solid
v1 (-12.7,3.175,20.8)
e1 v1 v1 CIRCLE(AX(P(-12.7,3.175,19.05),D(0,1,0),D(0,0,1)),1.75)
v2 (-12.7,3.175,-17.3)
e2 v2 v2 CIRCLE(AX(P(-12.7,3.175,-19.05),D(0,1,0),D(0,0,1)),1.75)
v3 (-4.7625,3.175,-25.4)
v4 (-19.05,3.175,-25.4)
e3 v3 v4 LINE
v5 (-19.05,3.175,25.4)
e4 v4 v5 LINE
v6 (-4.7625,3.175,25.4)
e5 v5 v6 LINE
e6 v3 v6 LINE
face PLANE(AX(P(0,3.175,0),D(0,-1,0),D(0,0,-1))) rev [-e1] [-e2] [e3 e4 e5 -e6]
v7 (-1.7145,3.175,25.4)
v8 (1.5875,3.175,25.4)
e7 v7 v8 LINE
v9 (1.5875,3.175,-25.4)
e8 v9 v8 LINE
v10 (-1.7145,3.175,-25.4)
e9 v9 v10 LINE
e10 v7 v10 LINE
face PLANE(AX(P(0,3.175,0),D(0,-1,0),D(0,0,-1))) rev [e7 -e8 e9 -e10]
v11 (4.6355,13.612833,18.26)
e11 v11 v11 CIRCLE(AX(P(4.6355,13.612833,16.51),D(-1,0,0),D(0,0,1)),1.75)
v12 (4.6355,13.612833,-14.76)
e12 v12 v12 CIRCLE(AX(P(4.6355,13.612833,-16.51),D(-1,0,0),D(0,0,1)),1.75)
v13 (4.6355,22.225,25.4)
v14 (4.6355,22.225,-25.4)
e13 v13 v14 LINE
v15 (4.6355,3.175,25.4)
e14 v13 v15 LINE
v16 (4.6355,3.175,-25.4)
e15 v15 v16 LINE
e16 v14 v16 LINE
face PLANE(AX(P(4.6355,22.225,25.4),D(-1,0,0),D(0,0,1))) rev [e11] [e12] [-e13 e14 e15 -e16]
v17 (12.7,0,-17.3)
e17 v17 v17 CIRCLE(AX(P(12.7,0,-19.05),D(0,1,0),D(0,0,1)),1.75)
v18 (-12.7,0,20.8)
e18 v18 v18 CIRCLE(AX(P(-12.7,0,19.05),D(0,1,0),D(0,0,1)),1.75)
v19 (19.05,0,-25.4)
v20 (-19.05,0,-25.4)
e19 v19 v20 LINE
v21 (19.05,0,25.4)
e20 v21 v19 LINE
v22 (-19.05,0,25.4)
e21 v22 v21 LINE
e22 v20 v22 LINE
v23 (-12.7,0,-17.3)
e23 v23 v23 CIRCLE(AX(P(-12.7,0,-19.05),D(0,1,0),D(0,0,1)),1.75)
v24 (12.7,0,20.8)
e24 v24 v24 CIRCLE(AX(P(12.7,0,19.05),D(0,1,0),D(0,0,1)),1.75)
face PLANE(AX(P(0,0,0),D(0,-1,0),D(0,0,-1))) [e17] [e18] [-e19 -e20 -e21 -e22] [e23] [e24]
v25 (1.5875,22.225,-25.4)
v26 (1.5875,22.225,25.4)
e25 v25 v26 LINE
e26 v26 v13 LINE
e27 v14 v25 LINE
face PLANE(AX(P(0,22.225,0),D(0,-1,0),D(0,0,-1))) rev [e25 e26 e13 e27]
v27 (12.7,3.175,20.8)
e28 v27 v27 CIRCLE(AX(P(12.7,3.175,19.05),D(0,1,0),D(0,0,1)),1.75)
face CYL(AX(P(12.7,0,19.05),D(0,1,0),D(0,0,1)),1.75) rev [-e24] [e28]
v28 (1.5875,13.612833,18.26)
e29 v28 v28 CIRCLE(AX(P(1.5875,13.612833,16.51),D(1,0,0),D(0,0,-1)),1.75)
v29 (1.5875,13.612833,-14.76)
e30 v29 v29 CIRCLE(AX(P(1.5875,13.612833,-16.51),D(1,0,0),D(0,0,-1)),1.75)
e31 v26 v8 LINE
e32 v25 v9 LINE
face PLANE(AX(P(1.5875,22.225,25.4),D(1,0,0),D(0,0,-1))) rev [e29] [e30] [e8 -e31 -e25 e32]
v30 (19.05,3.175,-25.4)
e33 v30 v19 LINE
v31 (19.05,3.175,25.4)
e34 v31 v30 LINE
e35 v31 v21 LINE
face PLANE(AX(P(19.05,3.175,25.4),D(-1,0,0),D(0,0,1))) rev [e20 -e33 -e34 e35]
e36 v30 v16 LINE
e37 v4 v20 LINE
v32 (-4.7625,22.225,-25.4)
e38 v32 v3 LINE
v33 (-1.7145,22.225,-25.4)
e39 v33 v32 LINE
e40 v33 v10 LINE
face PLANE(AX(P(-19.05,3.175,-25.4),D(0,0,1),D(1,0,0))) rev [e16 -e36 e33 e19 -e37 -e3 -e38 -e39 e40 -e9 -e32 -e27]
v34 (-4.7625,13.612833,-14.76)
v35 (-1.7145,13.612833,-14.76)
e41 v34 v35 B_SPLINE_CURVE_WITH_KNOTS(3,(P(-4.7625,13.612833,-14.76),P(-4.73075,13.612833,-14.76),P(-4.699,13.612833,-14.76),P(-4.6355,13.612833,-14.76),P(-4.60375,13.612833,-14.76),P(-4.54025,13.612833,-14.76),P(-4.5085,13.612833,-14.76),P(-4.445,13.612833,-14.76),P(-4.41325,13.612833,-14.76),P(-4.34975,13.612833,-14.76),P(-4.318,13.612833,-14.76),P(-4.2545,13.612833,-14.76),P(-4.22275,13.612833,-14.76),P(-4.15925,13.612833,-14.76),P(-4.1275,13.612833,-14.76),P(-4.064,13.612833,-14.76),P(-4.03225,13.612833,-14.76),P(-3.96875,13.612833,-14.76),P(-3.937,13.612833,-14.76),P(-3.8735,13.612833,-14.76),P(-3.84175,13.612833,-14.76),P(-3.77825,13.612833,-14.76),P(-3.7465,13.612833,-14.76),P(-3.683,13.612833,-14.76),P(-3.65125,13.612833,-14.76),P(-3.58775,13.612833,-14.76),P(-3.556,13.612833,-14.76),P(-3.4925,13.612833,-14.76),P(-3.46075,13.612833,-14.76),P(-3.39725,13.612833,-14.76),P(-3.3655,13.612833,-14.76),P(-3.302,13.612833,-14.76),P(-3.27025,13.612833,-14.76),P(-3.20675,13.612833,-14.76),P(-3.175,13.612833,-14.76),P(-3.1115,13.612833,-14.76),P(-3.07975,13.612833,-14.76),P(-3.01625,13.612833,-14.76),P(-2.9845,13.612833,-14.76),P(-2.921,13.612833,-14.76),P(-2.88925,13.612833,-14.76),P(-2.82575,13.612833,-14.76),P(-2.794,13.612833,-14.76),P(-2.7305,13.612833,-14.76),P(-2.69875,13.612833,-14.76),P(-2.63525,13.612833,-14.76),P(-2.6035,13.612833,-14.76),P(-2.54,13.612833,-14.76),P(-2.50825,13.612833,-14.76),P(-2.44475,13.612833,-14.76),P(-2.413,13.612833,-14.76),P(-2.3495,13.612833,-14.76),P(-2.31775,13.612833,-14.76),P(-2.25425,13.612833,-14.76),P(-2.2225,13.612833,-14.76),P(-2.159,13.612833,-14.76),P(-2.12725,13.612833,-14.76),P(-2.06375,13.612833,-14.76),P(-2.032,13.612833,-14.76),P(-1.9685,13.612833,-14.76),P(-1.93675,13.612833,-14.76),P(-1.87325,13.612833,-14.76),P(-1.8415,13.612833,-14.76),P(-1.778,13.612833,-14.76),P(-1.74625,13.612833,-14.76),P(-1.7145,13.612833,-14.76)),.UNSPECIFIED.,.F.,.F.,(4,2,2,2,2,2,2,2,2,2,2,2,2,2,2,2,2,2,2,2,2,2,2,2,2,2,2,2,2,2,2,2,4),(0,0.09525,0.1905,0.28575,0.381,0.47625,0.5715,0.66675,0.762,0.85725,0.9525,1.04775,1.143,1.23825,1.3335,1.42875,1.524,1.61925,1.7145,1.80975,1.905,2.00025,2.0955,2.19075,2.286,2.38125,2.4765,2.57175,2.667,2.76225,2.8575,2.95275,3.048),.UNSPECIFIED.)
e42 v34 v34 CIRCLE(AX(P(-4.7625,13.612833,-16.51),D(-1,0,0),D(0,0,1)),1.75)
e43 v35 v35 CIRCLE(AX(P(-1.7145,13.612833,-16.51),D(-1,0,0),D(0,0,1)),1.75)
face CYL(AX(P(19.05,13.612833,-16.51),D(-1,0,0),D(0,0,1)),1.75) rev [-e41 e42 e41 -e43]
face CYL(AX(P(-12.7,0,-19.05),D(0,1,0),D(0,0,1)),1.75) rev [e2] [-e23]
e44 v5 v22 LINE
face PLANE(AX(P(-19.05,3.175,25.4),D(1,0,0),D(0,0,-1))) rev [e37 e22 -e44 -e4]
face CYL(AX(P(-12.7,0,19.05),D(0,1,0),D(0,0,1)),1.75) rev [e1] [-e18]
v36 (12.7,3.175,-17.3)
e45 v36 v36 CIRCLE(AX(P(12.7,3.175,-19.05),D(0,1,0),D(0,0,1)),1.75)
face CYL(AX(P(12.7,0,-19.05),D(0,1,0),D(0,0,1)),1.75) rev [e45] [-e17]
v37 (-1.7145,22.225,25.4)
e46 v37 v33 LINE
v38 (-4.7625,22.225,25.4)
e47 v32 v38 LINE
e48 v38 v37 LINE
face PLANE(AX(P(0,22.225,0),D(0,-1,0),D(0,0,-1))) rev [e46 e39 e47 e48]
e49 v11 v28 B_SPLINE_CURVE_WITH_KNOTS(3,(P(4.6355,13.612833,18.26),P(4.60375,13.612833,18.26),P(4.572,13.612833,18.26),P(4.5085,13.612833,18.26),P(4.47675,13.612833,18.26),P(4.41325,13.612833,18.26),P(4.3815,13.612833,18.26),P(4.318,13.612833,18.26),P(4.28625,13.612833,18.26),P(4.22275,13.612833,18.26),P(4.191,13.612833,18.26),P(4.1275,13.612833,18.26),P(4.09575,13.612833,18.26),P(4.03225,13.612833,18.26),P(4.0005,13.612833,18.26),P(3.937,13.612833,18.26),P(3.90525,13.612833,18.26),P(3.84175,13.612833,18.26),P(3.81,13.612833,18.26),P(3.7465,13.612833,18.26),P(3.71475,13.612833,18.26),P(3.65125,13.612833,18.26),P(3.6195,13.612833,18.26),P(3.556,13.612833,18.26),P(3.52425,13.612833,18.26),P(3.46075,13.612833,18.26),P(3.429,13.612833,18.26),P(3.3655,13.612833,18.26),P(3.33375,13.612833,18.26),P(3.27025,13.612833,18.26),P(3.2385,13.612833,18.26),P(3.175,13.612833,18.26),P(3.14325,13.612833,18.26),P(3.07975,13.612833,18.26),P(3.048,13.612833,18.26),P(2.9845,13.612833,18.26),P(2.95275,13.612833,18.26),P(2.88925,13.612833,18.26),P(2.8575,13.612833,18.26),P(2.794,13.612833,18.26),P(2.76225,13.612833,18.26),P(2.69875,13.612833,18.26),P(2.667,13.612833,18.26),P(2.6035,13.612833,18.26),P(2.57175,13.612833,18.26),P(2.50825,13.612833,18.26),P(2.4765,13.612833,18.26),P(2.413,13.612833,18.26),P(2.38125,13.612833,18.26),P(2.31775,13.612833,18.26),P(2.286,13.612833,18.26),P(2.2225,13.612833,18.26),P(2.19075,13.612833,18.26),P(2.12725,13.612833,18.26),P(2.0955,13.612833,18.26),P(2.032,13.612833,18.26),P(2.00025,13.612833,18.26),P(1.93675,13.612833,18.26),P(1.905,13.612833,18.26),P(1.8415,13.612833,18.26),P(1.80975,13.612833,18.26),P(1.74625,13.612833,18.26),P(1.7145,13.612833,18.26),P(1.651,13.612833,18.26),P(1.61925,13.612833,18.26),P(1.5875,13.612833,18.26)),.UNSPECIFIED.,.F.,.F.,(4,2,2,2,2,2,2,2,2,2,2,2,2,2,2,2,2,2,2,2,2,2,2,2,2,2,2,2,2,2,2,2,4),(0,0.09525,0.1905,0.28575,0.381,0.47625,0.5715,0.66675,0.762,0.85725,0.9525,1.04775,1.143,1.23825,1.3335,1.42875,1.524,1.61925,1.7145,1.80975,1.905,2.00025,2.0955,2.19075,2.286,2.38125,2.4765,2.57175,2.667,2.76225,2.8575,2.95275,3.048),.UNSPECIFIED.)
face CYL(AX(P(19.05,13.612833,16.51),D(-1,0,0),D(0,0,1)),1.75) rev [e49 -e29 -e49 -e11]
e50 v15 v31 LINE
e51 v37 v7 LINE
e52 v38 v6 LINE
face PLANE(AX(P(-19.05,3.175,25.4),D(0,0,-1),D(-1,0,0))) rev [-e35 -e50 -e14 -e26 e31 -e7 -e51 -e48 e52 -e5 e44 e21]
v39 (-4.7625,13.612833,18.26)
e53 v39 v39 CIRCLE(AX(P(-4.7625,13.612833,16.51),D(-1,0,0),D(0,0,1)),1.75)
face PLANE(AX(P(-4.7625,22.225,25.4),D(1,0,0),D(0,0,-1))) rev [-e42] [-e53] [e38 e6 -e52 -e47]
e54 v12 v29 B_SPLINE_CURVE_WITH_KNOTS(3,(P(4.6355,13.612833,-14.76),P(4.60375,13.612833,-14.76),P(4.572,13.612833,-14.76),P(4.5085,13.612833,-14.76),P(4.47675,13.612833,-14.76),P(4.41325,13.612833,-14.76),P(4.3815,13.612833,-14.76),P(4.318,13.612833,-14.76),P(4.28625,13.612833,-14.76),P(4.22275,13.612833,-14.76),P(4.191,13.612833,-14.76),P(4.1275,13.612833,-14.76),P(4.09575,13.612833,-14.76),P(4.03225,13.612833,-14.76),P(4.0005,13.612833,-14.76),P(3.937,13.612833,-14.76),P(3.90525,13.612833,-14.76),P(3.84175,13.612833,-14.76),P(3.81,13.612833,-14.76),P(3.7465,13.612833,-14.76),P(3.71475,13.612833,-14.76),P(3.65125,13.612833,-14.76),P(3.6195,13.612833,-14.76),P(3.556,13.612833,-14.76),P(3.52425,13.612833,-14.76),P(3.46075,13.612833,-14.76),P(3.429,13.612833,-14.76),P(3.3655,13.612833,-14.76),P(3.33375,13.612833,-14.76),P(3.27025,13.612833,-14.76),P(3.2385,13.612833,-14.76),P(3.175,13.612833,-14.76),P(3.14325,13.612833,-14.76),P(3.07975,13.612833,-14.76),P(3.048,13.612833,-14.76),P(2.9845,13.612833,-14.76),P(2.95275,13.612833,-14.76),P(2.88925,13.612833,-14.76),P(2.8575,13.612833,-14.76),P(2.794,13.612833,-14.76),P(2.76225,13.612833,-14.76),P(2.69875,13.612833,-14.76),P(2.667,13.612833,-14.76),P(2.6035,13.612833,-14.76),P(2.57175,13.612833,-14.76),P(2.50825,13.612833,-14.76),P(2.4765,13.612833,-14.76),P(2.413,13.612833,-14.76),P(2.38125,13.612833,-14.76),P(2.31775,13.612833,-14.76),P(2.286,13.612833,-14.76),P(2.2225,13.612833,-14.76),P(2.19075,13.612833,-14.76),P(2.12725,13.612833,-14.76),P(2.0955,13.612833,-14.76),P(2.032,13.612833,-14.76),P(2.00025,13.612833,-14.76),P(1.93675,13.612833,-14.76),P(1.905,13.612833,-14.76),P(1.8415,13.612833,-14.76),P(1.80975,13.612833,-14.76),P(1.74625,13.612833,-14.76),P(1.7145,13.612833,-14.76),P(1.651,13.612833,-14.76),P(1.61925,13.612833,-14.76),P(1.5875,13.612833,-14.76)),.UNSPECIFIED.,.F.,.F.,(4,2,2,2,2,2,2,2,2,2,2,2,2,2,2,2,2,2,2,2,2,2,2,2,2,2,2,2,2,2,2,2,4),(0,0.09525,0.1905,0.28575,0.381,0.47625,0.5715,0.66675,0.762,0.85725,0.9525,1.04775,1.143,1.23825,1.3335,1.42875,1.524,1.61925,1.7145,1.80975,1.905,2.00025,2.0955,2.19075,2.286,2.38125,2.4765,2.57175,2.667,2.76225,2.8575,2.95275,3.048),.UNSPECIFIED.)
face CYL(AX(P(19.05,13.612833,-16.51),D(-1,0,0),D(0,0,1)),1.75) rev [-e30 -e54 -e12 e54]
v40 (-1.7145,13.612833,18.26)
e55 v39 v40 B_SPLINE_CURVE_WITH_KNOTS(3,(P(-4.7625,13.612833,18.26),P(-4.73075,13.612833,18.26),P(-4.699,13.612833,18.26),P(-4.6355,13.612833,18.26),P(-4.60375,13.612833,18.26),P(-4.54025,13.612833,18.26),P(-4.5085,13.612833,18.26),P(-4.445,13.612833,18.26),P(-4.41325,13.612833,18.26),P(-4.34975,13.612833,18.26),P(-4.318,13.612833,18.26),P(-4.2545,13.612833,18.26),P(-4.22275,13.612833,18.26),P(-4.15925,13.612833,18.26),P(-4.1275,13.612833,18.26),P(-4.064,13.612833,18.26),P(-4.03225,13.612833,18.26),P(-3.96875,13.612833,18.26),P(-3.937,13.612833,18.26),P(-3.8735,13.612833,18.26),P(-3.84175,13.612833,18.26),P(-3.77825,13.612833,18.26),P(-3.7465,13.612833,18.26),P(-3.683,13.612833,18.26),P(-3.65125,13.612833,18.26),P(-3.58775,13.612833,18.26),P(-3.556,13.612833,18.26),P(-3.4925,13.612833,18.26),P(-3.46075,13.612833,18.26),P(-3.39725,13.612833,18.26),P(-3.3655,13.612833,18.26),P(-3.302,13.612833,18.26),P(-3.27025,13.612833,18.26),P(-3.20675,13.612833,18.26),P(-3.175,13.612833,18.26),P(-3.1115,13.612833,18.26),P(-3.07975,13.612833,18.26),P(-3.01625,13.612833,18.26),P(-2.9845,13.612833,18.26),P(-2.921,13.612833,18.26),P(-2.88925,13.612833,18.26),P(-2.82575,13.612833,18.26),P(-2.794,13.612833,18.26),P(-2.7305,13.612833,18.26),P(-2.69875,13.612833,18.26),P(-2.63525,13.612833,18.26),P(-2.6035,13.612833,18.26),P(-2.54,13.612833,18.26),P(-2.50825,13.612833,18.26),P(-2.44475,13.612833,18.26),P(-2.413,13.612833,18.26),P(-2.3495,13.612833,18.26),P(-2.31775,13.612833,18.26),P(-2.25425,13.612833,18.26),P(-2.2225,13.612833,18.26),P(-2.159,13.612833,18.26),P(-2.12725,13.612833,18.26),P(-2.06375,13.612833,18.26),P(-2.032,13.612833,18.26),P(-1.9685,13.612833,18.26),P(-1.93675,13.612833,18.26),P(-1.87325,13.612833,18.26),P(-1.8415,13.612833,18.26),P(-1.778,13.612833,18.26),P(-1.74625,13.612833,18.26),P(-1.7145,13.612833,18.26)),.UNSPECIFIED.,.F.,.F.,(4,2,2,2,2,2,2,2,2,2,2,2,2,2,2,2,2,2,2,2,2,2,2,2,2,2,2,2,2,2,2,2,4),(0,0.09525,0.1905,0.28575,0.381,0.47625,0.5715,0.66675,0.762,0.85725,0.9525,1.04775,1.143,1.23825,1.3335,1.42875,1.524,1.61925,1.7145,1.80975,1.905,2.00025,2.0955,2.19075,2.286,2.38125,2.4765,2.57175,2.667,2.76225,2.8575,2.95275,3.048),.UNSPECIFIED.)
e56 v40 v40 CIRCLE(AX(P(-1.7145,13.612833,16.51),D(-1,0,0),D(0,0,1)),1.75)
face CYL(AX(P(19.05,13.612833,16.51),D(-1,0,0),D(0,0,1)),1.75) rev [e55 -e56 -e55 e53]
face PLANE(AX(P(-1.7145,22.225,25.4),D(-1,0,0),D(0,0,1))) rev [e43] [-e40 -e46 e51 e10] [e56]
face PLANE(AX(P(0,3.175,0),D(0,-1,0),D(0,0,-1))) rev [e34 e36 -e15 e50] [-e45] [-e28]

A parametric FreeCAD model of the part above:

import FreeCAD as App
import Part
import Sketcher
from FreeCAD import Vector
Q = App.Units.Quantity

doc = App.newDocument("Part")
body = doc.addObject("PartDesign::Body", "Body")

sketch1 = body.newObject("Sketcher::SketchObject", "Sketch")
sketch1.AttachmentSupport = (doc.getObject("XZ_Plane"), [""])
sketch1.MapMode = "FlatFace"
sketch1.addGeometry([
    Part.LineSegment(Vector(-19, -25, 0), Vector(-19, 25, 0)),
    Part.LineSegment(Vector(-19, 25, 0), Vector(19, 25, 0)),
    Part.LineSegment(Vector(19, 25, 0), Vector(19, -25, 0)),
    Part.LineSegment(Vector(19, -25, 0), Vector(-19, -25, 0)),
], False)
sketch1.addConstraint([
    Sketcher.Constraint("Coincident", 0, 2, 1, 1),
    Sketcher.Constraint("Coincident", 1, 2, 2, 1),
    Sketcher.Constraint("Coincident", 2, 2, 3, 1),
    Sketcher.Constraint("Coincident", 3, 2, 0, 1),
    Sketcher.Constraint("Vertical", 0),
    Sketcher.Constraint("Horizontal", 1),
    Sketcher.Constraint("Vertical", 2),
    Sketcher.Constraint("Horizontal", 3),
    Sketcher.Constraint("Symmetric", 0, 2, 2, 2, -1, 1),
    Sketcher.Constraint("DistanceY", 0, 1, 0, 2, Q("2 in")),
    Sketcher.Constraint("DistanceX", 1, 1, 1, 2, Q("1.5 in")),
])
pad1 = body.newObject("PartDesign::Pad", "Pad")
pad1.Profile = sketch1
pad1.Length = Q("0.125 in")
pad1.Reversed = True

sketch2 = body.newObject("Sketcher::SketchObject", "Sketch001")
sketch2.AttachmentSupport = (doc.getObject("XZ_Plane"), [""])
sketch2.MapMode = "FlatFace"
sketch2.AttachmentOffset = App.Placement(Vector(0, 0, -0.125 * 25.4), App.Rotation())
sketch2.addGeometry([
    Part.LineSegment(Vector(-4.8, -25.4, 0), Vector(-4.8, 25.4, 0)),
    Part.LineSegment(Vector(-4.8, 25.4, 0), Vector(-1.7, 25.4, 0)),
    Part.LineSegment(Vector(-1.7, 25.4, 0), Vector(-1.7, -25.4, 0)),
    Part.LineSegment(Vector(-1.7, -25.4, 0), Vector(-4.8, -25.4, 0)),
    Part.LineSegment(Vector(1.6, -25.4, 0), Vector(1.6, 25.4, 0)),
    Part.LineSegment(Vector(1.6, 25.4, 0), Vector(4.6, 25.4, 0)),
    Part.LineSegment(Vector(4.6, 25.4, 0), Vector(4.6, -25.4, 0)),
    Part.LineSegment(Vector(4.6, -25.4, 0), Vector(1.6, -25.4, 0)),
], False)
sketch2.addConstraint([
    Sketcher.Constraint("Coincident", 0, 2, 1, 1),
    Sketcher.Constraint("Coincident", 1, 2, 2, 1),
    Sketcher.Constraint("Coincident", 2, 2, 3, 1),
    Sketcher.Constraint("Coincident", 3, 2, 0, 1),
    Sketcher.Constraint("Coincident", 4, 2, 5, 1),
    Sketcher.Constraint("Coincident", 5, 2, 6, 1),
    Sketcher.Constraint("Coincident", 6, 2, 7, 1),
    Sketcher.Constraint("Coincident", 7, 2, 4, 1),
    Sketcher.Constraint("Vertical", 0),
    Sketcher.Constraint("Horizontal", 1),
    Sketcher.Constraint("Vertical", 2),
    Sketcher.Constraint("Horizontal", 3),
    Sketcher.Constraint("Vertical", 4),
    Sketcher.Constraint("Horizontal", 5),
    Sketcher.Constraint("Vertical", 6),
    Sketcher.Constraint("Horizontal", 7),
    Sketcher.Constraint("Horizontal", 1, 2, 4, 2),
    Sketcher.Constraint("Horizontal", 3, 2, 6, 2),
    Sketcher.Constraint("Equal", 3, 5),
    Sketcher.Constraint("DistanceY", 0, 1, 0, 2, Q("2 in")),
    Sketcher.Constraint("DistanceY", -1, 1, 0, 2, Q("1 in")),
    Sketcher.Constraint("DistanceX", 1, 1, 1, 2, Q("0.12 in")),
    Sketcher.Constraint("DistanceX", 1, 2, 4, 2, Q("0.13 in")),
    Sketcher.Constraint("DistanceX", 0, 2, -1, 1, Q("0.1875 in")),
])
pad2 = body.newObject("PartDesign::Pad", "Pad001")
pad2.Profile = sketch2
pad2.Length = Q("0.75 in")
pad2.Reversed = True

sketch3 = body.newObject("Sketcher::SketchObject", "Sketch002")
sketch3.AttachmentSupport = (doc.getObject("XZ_Plane"), [""])
sketch3.MapMode = "FlatFace"
sketch3.AttachmentOffset = App.Placement(Vector(0, 0, -0.125 * 25.4), App.Rotation())
sketch3.addGeometry([
    Part.Circle(Vector(-12.7, -19.1, 0), Vector(0, 0, 1), 1.8),
    Part.Circle(Vector(-12.7, 19.1, 0), Vector(0, 0, 1), 1.8),
    Part.Circle(Vector(12.7, 19.1, 0), Vector(0, 0, 1), 1.8),
    Part.Circle(Vector(12.7, -19.1, 0), Vector(0, 0, 1), 1.8),
], False)
sketch3.addConstraint([
    Sketcher.Constraint("Equal", 0, 1),
    Sketcher.Constraint("Equal", 1, 2),
    Sketcher.Constraint("Equal", 2, 3),
    Sketcher.Constraint("Symmetric", 0, 3, 2, 3, -1, 1),
    Sketcher.Constraint("Symmetric", 1, 3, 3, 3, -1, 1),
    Sketcher.Constraint("Symmetric", 1, 3, 2, 3, -2),
    Sketcher.Constraint("DistanceX", 1, 3, 2, 3, Q("1 in")),
    Sketcher.Constraint("DistanceY", 0, 3, 1, 3, Q("1.5 in")),
    Sketcher.Constraint("Diameter", 0, Q("3.5 mm")),
])
pocket1 = body.newObject("PartDesign::Pocket", "Pocket")
pocket1.Profile = sketch3
pocket1.Type = "ThroughAll"
pocket1.Reversed = True

sketch4 = body.newObject("Sketcher::SketchObject", "Sketch003")
sketch4.AttachmentSupport = (doc.getObject("YZ_Plane"), [""])
sketch4.MapMode = "FlatFace"
sketch4.AttachmentOffset = App.Placement(Vector(0, 0, -0.1875 * 25.4), App.Rotation())
sketch4.addGeometry([
    Part.Circle(Vector(13.6, -16.5, 0), Vector(0, 0, 1), 1.8),
    Part.Circle(Vector(13.6, 16.5, 0), Vector(0, 0, 1), 1.8),
], False)
sketch4.addConstraint([
    Sketcher.Constraint("Equal", 0, 1),
    Sketcher.Constraint("Symmetric", 0, 3, 1, 3, -1),
    Sketcher.Constraint("DistanceY", 0, 3, 1, 3, Q("1.3 in")),
    Sketcher.Constraint("Diameter", 0, Q("3.5 mm")),
    Sketcher.Constraint("DistanceX", -1, 1, 0, 3, Q("13.612833 mm")),
])
pocket2 = body.newObject("PartDesign::Pocket", "Pocket001")
pocket2.Profile = sketch4
pocket2.Type = "ThroughAll"
pocket2.Reversed = True

doc.recompute()
